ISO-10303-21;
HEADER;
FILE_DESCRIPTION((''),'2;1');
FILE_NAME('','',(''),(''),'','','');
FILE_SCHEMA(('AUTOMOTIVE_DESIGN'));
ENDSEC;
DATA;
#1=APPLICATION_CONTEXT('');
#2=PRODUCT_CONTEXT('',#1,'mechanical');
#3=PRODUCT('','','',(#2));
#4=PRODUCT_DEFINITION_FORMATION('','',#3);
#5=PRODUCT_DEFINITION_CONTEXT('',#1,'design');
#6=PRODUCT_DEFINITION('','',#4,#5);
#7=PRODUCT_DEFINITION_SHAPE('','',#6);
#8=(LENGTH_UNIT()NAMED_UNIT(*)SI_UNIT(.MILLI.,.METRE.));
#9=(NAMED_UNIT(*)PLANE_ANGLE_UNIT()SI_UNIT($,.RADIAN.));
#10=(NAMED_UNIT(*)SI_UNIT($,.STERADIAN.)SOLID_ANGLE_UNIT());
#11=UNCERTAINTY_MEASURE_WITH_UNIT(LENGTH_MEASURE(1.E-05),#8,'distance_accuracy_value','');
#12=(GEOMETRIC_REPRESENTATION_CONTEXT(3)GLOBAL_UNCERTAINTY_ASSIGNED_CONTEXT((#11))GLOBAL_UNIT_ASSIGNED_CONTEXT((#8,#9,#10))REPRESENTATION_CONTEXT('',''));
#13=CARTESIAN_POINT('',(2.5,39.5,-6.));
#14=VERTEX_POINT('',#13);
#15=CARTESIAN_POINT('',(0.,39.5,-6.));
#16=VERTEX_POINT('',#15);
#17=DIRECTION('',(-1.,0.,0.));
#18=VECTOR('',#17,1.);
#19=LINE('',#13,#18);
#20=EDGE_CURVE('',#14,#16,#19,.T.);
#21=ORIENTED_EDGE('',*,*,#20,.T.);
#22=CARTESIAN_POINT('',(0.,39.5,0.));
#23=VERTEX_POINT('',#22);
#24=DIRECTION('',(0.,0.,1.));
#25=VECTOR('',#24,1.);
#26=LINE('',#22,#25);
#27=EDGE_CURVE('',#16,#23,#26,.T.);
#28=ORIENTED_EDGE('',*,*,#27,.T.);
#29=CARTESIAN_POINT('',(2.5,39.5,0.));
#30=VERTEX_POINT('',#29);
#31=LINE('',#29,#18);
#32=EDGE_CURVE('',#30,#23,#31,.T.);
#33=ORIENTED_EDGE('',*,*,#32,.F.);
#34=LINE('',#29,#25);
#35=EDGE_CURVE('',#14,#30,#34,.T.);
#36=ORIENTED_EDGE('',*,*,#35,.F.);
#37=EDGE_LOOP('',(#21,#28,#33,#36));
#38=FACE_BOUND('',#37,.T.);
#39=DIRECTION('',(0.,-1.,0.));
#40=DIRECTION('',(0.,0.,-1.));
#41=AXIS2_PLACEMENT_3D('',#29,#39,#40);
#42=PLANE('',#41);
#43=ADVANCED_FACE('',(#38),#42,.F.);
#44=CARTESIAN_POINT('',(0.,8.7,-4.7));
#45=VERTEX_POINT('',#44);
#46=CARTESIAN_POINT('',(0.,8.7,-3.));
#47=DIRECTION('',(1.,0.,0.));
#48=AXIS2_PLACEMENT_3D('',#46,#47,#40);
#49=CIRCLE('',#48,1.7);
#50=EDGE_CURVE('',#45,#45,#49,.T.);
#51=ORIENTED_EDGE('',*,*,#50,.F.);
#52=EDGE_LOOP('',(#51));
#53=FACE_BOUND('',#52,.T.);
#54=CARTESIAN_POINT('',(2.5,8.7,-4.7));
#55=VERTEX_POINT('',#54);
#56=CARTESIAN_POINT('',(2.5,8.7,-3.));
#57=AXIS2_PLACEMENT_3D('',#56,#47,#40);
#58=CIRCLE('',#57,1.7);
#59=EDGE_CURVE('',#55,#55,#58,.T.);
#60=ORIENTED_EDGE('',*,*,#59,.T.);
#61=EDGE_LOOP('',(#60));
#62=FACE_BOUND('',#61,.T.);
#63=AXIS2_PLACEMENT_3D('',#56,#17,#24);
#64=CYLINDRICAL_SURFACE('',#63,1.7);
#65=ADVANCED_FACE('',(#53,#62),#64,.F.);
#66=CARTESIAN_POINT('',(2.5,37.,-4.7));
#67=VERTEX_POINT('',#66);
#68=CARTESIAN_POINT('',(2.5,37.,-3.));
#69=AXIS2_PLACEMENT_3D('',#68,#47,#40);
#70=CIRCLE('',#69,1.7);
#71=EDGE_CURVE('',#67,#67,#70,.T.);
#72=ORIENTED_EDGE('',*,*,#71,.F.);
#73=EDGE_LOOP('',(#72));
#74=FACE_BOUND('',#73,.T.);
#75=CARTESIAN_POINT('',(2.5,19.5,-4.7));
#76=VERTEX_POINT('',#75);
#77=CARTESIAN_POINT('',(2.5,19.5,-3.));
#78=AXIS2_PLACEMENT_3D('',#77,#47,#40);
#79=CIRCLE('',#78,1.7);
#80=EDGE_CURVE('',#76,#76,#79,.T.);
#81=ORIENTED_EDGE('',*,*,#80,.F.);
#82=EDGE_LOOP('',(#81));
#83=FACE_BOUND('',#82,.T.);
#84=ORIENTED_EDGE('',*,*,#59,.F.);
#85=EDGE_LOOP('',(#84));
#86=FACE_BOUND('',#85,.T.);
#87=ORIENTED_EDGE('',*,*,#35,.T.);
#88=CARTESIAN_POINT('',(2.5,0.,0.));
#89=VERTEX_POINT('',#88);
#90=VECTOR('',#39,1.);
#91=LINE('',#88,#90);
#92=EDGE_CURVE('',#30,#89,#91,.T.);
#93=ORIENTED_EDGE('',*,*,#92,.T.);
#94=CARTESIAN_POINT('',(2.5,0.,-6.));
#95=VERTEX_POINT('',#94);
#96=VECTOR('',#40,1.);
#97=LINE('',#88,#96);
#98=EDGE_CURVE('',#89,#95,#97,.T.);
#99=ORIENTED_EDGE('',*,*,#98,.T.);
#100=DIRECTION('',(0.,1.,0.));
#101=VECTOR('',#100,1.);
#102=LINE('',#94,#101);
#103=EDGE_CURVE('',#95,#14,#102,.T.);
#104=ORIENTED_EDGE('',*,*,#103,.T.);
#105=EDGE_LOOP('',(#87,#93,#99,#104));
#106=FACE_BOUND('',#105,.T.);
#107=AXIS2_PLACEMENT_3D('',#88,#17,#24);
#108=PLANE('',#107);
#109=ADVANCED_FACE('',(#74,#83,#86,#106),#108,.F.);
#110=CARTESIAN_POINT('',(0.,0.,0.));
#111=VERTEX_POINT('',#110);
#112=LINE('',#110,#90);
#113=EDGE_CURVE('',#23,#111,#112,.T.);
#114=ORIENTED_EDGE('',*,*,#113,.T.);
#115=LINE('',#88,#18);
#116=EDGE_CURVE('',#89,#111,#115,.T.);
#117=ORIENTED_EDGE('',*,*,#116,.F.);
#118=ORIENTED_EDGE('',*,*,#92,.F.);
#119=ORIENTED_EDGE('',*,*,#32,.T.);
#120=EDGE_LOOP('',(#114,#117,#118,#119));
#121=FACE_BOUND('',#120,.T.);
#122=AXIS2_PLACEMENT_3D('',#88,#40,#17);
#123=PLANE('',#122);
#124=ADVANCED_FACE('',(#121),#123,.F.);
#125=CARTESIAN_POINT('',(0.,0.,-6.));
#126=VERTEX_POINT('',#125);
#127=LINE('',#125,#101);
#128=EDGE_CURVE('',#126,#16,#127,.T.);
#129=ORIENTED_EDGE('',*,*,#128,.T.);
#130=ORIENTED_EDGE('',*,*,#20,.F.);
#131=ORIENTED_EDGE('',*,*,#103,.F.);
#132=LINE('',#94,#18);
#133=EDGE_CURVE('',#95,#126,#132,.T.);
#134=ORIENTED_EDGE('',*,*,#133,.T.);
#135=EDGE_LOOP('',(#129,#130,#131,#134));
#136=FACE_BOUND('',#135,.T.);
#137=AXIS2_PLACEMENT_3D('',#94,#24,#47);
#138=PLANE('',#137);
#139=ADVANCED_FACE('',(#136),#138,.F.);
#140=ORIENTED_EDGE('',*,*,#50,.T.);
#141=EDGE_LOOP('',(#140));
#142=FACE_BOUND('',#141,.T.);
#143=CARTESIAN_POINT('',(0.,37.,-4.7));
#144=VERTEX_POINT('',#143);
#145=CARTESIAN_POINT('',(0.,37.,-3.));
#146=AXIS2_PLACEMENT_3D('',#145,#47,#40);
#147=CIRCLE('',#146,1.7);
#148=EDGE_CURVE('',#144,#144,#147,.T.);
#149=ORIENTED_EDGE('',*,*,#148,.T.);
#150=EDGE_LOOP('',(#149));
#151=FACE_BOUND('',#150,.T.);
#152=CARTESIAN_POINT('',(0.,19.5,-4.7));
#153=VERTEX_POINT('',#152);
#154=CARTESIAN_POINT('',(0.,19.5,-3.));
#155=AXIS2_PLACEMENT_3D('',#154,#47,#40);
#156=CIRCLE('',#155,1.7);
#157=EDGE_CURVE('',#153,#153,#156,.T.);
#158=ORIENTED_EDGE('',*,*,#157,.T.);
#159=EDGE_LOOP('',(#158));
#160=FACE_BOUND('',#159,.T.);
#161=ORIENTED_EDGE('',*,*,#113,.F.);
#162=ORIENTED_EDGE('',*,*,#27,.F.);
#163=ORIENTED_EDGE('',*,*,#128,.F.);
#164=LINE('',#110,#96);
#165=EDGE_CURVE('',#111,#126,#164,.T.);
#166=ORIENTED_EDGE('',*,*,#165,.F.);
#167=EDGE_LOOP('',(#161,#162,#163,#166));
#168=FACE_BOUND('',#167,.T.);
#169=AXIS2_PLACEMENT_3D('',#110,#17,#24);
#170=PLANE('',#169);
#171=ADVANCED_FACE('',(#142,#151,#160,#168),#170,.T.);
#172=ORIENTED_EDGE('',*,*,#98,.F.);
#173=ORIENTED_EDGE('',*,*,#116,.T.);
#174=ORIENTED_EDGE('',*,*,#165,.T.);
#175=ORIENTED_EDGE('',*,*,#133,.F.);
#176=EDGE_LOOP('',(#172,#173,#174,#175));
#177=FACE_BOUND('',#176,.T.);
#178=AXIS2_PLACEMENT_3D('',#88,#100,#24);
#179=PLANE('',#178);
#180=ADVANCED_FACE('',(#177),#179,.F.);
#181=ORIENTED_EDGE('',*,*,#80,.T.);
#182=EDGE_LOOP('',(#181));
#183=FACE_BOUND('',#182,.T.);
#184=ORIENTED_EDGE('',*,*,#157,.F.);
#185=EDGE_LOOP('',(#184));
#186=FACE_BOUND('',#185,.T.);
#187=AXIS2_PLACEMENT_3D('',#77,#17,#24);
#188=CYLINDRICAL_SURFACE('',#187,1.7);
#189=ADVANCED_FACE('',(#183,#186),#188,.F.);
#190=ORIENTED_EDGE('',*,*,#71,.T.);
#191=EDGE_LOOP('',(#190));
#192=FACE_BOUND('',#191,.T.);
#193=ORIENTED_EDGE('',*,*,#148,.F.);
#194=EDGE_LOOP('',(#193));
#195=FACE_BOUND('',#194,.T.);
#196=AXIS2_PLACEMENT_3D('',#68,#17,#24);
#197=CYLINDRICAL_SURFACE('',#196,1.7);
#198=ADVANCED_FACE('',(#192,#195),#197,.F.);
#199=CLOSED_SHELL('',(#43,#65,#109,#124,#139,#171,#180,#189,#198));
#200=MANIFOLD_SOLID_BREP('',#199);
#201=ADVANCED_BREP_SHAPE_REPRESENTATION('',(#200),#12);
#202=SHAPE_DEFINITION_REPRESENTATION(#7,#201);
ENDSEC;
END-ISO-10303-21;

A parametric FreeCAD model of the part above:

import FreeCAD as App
import Part
import Sketcher

V = App.Vector


def add_polygon(sketch, points):
    """Adds a closed chain of lines whose ends are joined by coincident constraints."""
    first, n = sketch.GeometryCount, len(points)
    for a, b in zip(points, points[1:] + points[:1]):
        sketch.addGeometry(Part.LineSegment(App.Vector(*a, 0), App.Vector(*b, 0)), False)
    for i in range(n):
        sketch.addConstraint(Sketcher.Constraint("Coincident", first + i, 2, first + (i + 1) % n, 1))

doc = App.newDocument("Part")
body = doc.addObject("PartDesign::Body", "Body")

sketch1 = doc.addObject("Sketcher::SketchObject", "Sketch")
body.addObject(sketch1)
sketch1.AttachmentSupport = (doc.YZ_Plane, [""])
sketch1.MapMode = "FlatFace"
add_polygon(sketch1, [(39.5, 0), (0, 0), (0, -6), (39.5, -6)])
sketch1.addGeometry(Part.Circle(V(8.7, -3, 0), V(0, 0, 1), 1.7), False)
sketch1.addGeometry(Part.Circle(V(19.5, -3, 0), V(0, 0, 1), 1.7), False)
sketch1.addGeometry(Part.Circle(V(37, -3, 0), V(0, 0, 1), 1.7), False)
sketch1.addConstraint([
    Sketcher.Constraint("Horizontal", 0),
    Sketcher.Constraint("Vertical", 1),
    Sketcher.Constraint("Horizontal", 2),
    Sketcher.Constraint("Vertical", 3),
    Sketcher.Constraint("Coincident", 0, 2, -1, 1),
    Sketcher.Constraint("Equal", 4, 5),
    Sketcher.Constraint("Equal", 5, 6),
    Sketcher.Constraint("Horizontal", 4, 3, 5, 3),
    Sketcher.Constraint("Horizontal", 5, 3, 6, 3),
    Sketcher.Constraint("Diameter", 4, 3.4),
    Sketcher.Constraint("DistanceY", 1, 2, 1, 1, 6.0),
    Sketcher.Constraint("DistanceX", 0, 2, 0, 1, 39.5),
    Sketcher.Constraint("DistanceY", 4, 3, -1, 1, 3.0),
    Sketcher.Constraint("DistanceX", -1, 1, 6, 3, 37.0),
    Sketcher.Constraint("DistanceX", 5, 3, 2, 2, 20.0),
    Sketcher.Constraint("DistanceX", -1, 1, 4, 3, 8.7),
])
pad1 = doc.addObject("PartDesign::Pad", "Pad")
body.addObject(pad1)
pad1.Profile = sketch1
pad1.Length = 2.5

doc.recompute()
